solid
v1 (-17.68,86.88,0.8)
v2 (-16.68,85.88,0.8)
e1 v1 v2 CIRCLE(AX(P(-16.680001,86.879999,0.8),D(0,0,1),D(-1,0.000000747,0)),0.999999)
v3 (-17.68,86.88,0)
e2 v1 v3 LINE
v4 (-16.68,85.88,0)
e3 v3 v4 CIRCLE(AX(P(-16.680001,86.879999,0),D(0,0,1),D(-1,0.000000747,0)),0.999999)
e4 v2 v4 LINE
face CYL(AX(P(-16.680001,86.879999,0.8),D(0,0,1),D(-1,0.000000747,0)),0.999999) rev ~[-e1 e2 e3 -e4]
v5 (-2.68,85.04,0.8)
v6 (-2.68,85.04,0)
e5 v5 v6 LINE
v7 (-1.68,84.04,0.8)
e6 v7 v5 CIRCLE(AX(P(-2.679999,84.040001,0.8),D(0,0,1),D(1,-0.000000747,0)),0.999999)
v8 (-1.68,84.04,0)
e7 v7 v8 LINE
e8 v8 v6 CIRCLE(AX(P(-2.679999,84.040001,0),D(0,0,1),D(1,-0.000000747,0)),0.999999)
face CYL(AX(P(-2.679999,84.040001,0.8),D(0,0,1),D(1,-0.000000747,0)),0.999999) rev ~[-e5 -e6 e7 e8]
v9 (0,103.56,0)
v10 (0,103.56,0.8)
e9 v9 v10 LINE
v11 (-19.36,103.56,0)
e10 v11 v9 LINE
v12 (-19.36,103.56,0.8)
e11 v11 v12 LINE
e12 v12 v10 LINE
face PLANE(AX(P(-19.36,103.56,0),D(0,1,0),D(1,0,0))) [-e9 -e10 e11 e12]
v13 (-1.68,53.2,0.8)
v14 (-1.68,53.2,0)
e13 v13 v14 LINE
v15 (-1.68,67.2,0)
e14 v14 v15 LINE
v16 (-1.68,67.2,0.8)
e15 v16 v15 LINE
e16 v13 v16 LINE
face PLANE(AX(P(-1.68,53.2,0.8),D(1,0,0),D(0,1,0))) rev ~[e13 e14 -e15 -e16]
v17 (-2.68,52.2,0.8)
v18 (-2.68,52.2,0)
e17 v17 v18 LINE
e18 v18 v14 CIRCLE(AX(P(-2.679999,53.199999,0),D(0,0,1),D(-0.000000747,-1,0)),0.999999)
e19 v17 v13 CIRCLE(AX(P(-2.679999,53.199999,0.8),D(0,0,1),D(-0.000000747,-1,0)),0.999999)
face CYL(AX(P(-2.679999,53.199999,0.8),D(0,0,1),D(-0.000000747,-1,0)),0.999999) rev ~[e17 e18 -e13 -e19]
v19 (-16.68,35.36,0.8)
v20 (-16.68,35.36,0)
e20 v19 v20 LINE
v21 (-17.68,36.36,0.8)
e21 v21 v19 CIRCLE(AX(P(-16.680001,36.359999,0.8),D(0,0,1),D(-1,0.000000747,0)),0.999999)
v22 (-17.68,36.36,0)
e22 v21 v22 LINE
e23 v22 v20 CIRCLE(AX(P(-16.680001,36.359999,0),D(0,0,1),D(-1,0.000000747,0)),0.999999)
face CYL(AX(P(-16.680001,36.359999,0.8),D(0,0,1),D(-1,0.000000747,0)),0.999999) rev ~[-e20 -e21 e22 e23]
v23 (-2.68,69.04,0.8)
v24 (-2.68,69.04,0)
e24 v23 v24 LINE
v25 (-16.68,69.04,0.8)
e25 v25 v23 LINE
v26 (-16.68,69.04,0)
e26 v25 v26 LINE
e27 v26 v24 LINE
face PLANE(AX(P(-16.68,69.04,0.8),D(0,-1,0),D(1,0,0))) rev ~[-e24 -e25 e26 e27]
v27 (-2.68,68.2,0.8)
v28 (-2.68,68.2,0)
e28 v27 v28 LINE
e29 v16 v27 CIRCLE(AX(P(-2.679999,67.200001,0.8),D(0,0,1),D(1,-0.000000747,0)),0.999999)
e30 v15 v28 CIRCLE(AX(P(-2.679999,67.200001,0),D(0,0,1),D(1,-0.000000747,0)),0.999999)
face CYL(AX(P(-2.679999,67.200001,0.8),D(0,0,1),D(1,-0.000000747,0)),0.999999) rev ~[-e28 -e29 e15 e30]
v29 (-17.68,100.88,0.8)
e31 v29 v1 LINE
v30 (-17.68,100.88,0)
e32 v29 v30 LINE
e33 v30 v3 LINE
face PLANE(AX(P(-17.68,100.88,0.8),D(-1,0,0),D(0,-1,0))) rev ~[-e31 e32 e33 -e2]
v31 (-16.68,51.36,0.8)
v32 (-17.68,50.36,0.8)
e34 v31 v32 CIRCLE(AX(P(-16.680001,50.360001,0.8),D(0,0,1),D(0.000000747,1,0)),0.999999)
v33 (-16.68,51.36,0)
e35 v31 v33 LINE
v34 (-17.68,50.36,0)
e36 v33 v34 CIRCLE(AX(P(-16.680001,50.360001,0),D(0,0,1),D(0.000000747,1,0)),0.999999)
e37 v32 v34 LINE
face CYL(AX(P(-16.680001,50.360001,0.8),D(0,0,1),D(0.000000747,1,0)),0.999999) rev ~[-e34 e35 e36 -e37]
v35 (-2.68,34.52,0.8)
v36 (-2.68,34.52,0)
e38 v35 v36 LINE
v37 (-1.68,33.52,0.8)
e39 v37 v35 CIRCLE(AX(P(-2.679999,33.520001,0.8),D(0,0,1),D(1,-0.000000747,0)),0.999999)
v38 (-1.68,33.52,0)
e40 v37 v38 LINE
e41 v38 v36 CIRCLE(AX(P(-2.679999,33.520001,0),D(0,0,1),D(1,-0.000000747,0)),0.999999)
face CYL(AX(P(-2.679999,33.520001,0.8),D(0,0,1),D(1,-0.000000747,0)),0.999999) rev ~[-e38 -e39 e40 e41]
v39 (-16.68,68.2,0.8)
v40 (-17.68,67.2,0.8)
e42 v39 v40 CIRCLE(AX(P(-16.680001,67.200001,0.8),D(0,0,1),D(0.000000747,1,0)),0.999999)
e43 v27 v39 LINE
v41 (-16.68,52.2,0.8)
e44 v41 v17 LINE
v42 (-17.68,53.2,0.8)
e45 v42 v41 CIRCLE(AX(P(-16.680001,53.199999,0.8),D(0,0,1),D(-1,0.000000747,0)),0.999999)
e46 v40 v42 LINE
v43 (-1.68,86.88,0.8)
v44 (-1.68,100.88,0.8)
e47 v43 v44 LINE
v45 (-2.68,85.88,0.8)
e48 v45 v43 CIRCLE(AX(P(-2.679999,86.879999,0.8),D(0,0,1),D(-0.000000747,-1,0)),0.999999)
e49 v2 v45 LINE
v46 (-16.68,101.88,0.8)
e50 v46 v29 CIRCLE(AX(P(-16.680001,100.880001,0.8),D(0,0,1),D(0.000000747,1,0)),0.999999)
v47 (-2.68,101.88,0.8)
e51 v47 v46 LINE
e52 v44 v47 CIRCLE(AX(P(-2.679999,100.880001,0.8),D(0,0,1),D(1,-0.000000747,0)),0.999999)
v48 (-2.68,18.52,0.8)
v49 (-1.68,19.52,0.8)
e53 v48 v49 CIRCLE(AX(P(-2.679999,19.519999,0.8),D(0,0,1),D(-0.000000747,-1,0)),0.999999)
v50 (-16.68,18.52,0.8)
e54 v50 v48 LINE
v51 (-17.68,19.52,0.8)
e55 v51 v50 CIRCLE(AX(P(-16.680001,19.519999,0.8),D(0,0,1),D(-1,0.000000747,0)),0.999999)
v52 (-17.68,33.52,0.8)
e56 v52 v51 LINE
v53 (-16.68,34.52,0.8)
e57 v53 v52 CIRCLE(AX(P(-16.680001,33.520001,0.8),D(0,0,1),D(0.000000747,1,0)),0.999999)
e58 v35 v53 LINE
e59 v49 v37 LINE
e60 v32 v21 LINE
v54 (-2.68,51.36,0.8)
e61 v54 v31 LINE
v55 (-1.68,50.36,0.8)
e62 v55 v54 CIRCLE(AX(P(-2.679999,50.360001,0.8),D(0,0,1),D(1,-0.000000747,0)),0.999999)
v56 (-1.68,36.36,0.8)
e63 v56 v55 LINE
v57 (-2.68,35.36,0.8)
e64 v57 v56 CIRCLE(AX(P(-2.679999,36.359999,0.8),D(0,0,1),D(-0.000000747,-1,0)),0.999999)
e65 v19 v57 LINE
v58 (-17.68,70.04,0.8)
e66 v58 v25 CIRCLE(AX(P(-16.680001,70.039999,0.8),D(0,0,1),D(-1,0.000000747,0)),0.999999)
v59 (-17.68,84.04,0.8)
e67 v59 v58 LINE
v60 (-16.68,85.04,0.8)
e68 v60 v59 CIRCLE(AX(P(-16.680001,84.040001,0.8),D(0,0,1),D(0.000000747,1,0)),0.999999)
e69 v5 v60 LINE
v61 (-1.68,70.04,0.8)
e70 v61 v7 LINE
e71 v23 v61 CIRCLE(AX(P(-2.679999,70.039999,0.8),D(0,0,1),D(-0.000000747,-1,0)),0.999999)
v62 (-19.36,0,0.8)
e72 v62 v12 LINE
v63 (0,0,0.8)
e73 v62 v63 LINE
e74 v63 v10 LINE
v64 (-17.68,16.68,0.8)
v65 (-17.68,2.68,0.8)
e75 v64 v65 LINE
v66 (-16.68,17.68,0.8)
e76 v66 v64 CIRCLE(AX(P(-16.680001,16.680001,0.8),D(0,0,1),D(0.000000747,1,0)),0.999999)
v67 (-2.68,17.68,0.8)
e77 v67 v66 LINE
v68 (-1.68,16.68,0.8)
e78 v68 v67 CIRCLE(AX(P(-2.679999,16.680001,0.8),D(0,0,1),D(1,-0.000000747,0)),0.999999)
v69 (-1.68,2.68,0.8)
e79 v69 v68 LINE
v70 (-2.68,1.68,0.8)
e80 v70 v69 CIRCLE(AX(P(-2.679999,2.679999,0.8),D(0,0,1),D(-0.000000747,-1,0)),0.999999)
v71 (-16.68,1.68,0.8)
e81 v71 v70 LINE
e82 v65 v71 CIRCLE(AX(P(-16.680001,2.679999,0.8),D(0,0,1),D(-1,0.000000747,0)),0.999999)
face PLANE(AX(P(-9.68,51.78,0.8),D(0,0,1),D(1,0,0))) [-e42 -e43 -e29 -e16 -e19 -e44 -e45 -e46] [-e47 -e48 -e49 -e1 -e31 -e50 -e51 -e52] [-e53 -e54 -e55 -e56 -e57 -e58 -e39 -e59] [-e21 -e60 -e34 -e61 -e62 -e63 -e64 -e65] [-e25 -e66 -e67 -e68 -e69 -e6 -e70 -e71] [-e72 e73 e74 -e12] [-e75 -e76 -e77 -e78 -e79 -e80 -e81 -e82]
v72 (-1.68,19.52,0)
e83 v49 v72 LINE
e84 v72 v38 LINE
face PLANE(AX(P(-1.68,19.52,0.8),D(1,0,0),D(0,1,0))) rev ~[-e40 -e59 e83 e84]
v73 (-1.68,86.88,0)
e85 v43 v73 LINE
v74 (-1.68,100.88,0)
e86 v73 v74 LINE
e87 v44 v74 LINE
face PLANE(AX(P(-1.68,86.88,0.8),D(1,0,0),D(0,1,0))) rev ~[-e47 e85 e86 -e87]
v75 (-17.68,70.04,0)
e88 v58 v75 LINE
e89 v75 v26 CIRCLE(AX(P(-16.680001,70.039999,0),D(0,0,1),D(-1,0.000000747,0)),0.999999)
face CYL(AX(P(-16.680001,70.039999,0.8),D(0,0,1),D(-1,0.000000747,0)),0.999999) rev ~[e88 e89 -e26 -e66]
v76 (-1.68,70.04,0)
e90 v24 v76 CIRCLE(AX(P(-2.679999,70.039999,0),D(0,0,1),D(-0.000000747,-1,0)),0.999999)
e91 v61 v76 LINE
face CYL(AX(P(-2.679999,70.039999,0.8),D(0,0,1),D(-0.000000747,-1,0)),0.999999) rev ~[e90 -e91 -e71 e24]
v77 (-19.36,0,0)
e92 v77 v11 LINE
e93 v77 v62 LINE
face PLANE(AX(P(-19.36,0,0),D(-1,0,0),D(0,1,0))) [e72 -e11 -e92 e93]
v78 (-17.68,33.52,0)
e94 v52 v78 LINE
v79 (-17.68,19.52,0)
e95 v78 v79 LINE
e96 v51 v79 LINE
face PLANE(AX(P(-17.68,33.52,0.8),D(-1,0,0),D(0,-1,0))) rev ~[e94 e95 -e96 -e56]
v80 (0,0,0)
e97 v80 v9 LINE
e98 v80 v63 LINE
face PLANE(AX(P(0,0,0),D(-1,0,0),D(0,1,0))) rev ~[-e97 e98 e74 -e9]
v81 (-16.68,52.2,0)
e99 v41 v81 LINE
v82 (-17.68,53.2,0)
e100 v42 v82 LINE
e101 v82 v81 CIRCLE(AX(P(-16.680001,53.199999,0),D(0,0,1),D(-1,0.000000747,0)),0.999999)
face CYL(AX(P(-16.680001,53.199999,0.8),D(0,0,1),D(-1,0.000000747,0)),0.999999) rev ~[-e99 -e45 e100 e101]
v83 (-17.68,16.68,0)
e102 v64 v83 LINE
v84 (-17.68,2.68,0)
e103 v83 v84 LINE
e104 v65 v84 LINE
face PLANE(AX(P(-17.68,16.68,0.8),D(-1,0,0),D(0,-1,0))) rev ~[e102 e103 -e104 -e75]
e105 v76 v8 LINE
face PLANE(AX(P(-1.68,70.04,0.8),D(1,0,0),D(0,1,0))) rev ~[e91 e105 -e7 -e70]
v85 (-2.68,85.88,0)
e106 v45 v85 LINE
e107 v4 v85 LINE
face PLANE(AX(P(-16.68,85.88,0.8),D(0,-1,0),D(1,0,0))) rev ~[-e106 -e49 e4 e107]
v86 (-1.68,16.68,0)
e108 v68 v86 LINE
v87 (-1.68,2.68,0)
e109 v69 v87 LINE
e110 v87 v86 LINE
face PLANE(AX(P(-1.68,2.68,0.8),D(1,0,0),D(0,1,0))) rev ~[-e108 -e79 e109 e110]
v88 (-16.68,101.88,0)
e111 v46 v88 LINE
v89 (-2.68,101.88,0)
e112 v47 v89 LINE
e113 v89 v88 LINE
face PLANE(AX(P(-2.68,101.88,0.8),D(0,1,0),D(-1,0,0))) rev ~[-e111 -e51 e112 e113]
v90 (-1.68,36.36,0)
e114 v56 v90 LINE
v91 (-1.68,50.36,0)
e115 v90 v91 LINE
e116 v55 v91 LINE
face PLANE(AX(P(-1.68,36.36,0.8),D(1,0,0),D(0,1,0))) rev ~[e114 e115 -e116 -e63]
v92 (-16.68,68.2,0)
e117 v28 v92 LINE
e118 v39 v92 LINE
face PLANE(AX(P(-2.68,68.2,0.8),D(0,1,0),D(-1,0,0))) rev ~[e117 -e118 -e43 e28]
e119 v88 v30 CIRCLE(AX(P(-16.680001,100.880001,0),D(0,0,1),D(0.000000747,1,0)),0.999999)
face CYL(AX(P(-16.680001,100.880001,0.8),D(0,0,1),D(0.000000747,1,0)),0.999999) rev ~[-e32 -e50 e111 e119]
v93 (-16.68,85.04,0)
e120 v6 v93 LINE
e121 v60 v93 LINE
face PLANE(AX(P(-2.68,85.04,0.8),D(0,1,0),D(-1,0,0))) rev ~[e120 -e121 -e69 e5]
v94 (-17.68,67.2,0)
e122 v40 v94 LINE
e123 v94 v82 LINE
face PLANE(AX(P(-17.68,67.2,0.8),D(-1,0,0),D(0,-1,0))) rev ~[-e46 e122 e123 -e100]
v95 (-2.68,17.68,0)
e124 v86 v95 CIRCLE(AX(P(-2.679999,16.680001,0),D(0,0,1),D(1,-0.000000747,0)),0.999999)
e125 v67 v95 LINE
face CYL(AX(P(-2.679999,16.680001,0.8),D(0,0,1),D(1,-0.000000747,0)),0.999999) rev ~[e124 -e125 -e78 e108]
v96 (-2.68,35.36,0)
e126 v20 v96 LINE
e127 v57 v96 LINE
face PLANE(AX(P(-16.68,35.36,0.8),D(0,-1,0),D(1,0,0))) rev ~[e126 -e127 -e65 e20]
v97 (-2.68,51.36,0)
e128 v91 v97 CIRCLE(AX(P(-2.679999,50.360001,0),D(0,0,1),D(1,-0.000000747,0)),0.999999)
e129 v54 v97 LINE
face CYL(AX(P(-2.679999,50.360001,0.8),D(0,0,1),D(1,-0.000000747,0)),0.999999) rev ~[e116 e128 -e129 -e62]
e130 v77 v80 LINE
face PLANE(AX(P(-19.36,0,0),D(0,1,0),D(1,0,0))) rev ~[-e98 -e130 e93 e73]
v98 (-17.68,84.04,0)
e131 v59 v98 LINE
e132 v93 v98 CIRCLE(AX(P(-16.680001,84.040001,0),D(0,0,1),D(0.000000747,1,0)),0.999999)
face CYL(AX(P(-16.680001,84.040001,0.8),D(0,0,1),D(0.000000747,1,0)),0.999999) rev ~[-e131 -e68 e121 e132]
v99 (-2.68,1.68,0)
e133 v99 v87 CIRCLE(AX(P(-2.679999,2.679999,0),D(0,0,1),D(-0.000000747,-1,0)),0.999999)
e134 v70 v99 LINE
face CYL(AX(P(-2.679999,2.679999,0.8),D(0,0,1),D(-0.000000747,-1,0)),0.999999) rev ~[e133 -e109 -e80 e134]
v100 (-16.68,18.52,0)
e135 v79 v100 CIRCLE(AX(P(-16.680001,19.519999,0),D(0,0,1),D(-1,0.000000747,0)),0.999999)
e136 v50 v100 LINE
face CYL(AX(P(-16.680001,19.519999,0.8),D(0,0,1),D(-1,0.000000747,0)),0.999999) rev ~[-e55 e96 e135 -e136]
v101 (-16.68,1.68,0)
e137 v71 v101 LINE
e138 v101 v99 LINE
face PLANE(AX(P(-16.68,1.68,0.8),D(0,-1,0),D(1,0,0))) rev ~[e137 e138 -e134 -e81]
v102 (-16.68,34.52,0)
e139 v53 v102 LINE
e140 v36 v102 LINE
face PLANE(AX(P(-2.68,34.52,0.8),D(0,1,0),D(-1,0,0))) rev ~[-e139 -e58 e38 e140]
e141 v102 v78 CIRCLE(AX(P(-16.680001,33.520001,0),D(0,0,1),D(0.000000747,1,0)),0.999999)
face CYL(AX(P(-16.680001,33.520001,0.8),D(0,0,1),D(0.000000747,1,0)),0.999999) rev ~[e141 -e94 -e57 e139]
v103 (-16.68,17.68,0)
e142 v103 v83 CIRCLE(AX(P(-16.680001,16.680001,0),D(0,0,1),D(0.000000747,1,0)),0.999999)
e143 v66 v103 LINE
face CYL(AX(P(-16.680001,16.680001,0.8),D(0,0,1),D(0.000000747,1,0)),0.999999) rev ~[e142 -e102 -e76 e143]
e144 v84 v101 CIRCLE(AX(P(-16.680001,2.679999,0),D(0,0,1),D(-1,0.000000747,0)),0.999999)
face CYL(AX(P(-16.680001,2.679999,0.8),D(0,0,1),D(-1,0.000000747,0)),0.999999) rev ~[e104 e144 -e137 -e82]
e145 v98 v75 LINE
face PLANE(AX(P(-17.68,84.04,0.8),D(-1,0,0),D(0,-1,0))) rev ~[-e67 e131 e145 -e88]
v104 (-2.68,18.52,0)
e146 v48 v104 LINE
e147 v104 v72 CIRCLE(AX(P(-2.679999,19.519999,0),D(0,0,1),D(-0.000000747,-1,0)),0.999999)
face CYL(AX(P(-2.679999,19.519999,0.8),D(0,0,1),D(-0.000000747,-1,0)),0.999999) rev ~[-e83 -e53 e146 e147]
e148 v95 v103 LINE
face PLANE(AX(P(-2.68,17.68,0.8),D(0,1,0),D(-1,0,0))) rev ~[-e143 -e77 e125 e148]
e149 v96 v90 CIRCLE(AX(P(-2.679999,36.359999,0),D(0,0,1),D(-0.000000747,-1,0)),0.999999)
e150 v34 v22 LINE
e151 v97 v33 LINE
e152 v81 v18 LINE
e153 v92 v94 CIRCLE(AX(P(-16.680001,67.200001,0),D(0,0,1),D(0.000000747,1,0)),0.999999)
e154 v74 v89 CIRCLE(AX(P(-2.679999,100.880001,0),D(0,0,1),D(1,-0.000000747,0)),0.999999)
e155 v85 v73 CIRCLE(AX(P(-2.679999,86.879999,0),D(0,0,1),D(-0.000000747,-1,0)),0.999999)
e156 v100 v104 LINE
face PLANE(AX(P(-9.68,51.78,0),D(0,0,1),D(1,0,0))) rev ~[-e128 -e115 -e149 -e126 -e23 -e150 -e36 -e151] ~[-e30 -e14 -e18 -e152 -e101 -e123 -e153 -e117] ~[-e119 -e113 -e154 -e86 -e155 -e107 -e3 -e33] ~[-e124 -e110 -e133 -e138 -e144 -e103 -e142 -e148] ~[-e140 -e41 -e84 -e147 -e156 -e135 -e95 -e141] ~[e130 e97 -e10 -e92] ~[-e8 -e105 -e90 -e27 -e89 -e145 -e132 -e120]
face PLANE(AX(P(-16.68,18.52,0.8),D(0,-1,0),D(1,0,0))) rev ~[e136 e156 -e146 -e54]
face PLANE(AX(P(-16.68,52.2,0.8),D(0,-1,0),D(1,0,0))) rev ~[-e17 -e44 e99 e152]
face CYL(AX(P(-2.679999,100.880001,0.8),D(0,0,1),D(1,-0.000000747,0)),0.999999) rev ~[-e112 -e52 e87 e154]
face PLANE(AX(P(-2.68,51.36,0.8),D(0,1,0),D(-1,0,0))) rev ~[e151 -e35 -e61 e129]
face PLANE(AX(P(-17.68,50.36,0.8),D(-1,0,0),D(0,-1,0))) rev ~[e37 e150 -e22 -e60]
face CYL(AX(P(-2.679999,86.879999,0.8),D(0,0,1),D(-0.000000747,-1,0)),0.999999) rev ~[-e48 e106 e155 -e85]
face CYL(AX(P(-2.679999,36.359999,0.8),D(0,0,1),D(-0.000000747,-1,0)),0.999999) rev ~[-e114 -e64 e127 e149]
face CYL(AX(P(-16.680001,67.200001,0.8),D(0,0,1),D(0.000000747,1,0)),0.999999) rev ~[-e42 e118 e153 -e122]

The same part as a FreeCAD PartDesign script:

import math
import FreeCAD as App
import Part
import Sketcher
from FreeCAD import Vector
Q = App.Units.Quantity


def add_polygon(sketch, points):
    """Adds a closed chain of lines whose ends are joined by coincident constraints."""
    first, n = sketch.GeometryCount, len(points)
    for a, b in zip(points, points[1:] + points[:1]):
        sketch.addGeometry(Part.LineSegment(App.Vector(*a, 0), App.Vector(*b, 0)), False)
    for i in range(n):
        sketch.addConstraint(Sketcher.Constraint("Coincident", first + i, 2, first + (i + 1) % n, 1))

doc = App.newDocument("Part")
params = doc.addObject("Spreadsheet::Sheet", "Params")
for row, (alias, value) in enumerate([
    ("sketch1_width", "19.36 mm"),
    ("sketch1_height", "103.56 mm"),
    ("pad1_length", "0.8 mm"),
    ("sketch2_radius", "0.999999 mm"),
    ("sketch2_width", "14 mm"),
    ("pocket1_length", "5 mm"),
    ("linearpattern_pitch", "16.84 mm"),
], start=1):
    params.set(f"A{row}", alias)
    params.set(f"B{row}", "=" + value)
    params.setAlias(f"B{row}", alias)

body = doc.addObject("PartDesign::Body", "Body")

# Sketch on XY plane
sketch1 = body.newObject("Sketcher::SketchObject", "Sketch")
sketch1.AttachmentSupport = (doc.getObject("XY_Plane"), [""])
sketch1.MapMode = "FlatFace"
add_polygon(sketch1, [(-19, 104), (-19, 0), (0, 0), (0, 104)])  # lines 0-3
sketch1.addConstraint([
    Sketcher.Constraint("Vertical", 0),
    Sketcher.Constraint("Horizontal", 1),
    Sketcher.Constraint("Vertical", 2),
    Sketcher.Constraint("Horizontal", 3),
    Sketcher.Constraint("Coincident", 1, 2, -1, 1),
    Sketcher.Constraint("DistanceX", 1, 1, 1, 2, Q("19.36 mm")),
    Sketcher.Constraint("DistanceY", 0, 2, 0, 1, Q("103.56 mm")),
])
sketch1.setExpression("Constraints[9]", "Params.sketch1_width")
sketch1.setExpression("Constraints[10]", "Params.sketch1_height")
pad1 = body.newObject("PartDesign::Pad", "Pad")
pad1.Profile = sketch1
pad1.setExpression("Length", "Params.pad1_length")

# Sketch on XY plane
sketch2 = body.newObject("Sketcher::SketchObject", "Sketch001")
sketch2.AttachmentSupport = (doc.getObject("XY_Plane"), [""])
sketch2.MapMode = "FlatFace"
sketch2.AttachmentOffset = App.Placement(Vector(0, 0, 0.8), App.Rotation())
sketch2.addGeometry([
    Part.LineSegment(Vector(-17.7, 16.7, 0), Vector(-17.7, 2.7, 0)),  # 0
    Part.ArcOfCircle(Part.Circle(Vector(-16.7, 2.7, 0), Vector(0, 0, 1), 1), math.radians(180), math.radians(270)),  # 1
    Part.LineSegment(Vector(-16.7, 1.7, 0), Vector(-2.7, 1.7, 0)),  # 2
    Part.ArcOfCircle(Part.Circle(Vector(-2.7, 2.7, 0), Vector(0, 0, 1), 1), math.radians(-90), math.radians(0)),  # 3
    Part.LineSegment(Vector(-1.7, 2.7, 0), Vector(-1.7, 16.7, 0)),  # 4
    Part.ArcOfCircle(Part.Circle(Vector(-2.7, 16.7, 0), Vector(0, 0, 1), 1), math.radians(0), math.radians(90)),  # 5
    Part.LineSegment(Vector(-2.7, 17.7, 0), Vector(-16.7, 17.7, 0)),  # 6
    Part.ArcOfCircle(Part.Circle(Vector(-16.7, 16.7, 0), Vector(0, 0, 1), 1), math.radians(90), math.radians(180)),  # 7
], False)
sketch2.addConstraint([
    Sketcher.Constraint("Tangent", 0, 2, 1, 1),
    Sketcher.Constraint("Tangent", 1, 2, 2, 1),
    Sketcher.Constraint("Tangent", 2, 2, 3, 1),
    Sketcher.Constraint("Tangent", 3, 2, 4, 1),
    Sketcher.Constraint("Tangent", 4, 2, 5, 1),
    Sketcher.Constraint("Tangent", 5, 2, 6, 1),
    Sketcher.Constraint("Tangent", 6, 2, 7, 1),
    Sketcher.Constraint("Tangent", 7, 2, 0, 1),
    Sketcher.Constraint("Vertical", 0),
    Sketcher.Constraint("Horizontal", 2),
    Sketcher.Constraint("Vertical", 4),
    Sketcher.Constraint("Horizontal", 6),
    Sketcher.Constraint("Equal", 1, 3),
    Sketcher.Constraint("Equal", 3, 5),
    Sketcher.Constraint("Equal", 5, 7),
    Sketcher.Constraint("Equal", 6, 0),
    Sketcher.Constraint("Radius", 1, Q("0.999999 mm")),
    Sketcher.Constraint("DistanceX", 2, 1, 2, 2, Q("14 mm")),
    Sketcher.Constraint("DistanceX", 1, 3, -1, 1, Q("16.680001 mm")),
    Sketcher.Constraint("DistanceY", -1, 1, 1, 3, Q("2.679999 mm")),
])
sketch2.setExpression("Constraints[16]", "Params.sketch2_radius")
sketch2.setExpression("Constraints[17]", "Params.sketch2_width")
pocket1 = body.newObject("PartDesign::Pocket", "Pocket")
pocket1.Profile = sketch2
pocket1.setExpression("Length", "Params.pocket1_length")
doc.recompute()

linearpattern = body.newObject("PartDesign::LinearPattern", "LinearPattern")
linearpattern.Originals = [pocket1]
linearpattern.Direction = (doc.getObject("Y_Axis"), [""])
linearpattern.Mode = "offset"
linearpattern.setExpression("Offset", "Params.linearpattern_pitch")
linearpattern.Occurrences = 6
body.Tip = linearpattern

doc.recompute()
